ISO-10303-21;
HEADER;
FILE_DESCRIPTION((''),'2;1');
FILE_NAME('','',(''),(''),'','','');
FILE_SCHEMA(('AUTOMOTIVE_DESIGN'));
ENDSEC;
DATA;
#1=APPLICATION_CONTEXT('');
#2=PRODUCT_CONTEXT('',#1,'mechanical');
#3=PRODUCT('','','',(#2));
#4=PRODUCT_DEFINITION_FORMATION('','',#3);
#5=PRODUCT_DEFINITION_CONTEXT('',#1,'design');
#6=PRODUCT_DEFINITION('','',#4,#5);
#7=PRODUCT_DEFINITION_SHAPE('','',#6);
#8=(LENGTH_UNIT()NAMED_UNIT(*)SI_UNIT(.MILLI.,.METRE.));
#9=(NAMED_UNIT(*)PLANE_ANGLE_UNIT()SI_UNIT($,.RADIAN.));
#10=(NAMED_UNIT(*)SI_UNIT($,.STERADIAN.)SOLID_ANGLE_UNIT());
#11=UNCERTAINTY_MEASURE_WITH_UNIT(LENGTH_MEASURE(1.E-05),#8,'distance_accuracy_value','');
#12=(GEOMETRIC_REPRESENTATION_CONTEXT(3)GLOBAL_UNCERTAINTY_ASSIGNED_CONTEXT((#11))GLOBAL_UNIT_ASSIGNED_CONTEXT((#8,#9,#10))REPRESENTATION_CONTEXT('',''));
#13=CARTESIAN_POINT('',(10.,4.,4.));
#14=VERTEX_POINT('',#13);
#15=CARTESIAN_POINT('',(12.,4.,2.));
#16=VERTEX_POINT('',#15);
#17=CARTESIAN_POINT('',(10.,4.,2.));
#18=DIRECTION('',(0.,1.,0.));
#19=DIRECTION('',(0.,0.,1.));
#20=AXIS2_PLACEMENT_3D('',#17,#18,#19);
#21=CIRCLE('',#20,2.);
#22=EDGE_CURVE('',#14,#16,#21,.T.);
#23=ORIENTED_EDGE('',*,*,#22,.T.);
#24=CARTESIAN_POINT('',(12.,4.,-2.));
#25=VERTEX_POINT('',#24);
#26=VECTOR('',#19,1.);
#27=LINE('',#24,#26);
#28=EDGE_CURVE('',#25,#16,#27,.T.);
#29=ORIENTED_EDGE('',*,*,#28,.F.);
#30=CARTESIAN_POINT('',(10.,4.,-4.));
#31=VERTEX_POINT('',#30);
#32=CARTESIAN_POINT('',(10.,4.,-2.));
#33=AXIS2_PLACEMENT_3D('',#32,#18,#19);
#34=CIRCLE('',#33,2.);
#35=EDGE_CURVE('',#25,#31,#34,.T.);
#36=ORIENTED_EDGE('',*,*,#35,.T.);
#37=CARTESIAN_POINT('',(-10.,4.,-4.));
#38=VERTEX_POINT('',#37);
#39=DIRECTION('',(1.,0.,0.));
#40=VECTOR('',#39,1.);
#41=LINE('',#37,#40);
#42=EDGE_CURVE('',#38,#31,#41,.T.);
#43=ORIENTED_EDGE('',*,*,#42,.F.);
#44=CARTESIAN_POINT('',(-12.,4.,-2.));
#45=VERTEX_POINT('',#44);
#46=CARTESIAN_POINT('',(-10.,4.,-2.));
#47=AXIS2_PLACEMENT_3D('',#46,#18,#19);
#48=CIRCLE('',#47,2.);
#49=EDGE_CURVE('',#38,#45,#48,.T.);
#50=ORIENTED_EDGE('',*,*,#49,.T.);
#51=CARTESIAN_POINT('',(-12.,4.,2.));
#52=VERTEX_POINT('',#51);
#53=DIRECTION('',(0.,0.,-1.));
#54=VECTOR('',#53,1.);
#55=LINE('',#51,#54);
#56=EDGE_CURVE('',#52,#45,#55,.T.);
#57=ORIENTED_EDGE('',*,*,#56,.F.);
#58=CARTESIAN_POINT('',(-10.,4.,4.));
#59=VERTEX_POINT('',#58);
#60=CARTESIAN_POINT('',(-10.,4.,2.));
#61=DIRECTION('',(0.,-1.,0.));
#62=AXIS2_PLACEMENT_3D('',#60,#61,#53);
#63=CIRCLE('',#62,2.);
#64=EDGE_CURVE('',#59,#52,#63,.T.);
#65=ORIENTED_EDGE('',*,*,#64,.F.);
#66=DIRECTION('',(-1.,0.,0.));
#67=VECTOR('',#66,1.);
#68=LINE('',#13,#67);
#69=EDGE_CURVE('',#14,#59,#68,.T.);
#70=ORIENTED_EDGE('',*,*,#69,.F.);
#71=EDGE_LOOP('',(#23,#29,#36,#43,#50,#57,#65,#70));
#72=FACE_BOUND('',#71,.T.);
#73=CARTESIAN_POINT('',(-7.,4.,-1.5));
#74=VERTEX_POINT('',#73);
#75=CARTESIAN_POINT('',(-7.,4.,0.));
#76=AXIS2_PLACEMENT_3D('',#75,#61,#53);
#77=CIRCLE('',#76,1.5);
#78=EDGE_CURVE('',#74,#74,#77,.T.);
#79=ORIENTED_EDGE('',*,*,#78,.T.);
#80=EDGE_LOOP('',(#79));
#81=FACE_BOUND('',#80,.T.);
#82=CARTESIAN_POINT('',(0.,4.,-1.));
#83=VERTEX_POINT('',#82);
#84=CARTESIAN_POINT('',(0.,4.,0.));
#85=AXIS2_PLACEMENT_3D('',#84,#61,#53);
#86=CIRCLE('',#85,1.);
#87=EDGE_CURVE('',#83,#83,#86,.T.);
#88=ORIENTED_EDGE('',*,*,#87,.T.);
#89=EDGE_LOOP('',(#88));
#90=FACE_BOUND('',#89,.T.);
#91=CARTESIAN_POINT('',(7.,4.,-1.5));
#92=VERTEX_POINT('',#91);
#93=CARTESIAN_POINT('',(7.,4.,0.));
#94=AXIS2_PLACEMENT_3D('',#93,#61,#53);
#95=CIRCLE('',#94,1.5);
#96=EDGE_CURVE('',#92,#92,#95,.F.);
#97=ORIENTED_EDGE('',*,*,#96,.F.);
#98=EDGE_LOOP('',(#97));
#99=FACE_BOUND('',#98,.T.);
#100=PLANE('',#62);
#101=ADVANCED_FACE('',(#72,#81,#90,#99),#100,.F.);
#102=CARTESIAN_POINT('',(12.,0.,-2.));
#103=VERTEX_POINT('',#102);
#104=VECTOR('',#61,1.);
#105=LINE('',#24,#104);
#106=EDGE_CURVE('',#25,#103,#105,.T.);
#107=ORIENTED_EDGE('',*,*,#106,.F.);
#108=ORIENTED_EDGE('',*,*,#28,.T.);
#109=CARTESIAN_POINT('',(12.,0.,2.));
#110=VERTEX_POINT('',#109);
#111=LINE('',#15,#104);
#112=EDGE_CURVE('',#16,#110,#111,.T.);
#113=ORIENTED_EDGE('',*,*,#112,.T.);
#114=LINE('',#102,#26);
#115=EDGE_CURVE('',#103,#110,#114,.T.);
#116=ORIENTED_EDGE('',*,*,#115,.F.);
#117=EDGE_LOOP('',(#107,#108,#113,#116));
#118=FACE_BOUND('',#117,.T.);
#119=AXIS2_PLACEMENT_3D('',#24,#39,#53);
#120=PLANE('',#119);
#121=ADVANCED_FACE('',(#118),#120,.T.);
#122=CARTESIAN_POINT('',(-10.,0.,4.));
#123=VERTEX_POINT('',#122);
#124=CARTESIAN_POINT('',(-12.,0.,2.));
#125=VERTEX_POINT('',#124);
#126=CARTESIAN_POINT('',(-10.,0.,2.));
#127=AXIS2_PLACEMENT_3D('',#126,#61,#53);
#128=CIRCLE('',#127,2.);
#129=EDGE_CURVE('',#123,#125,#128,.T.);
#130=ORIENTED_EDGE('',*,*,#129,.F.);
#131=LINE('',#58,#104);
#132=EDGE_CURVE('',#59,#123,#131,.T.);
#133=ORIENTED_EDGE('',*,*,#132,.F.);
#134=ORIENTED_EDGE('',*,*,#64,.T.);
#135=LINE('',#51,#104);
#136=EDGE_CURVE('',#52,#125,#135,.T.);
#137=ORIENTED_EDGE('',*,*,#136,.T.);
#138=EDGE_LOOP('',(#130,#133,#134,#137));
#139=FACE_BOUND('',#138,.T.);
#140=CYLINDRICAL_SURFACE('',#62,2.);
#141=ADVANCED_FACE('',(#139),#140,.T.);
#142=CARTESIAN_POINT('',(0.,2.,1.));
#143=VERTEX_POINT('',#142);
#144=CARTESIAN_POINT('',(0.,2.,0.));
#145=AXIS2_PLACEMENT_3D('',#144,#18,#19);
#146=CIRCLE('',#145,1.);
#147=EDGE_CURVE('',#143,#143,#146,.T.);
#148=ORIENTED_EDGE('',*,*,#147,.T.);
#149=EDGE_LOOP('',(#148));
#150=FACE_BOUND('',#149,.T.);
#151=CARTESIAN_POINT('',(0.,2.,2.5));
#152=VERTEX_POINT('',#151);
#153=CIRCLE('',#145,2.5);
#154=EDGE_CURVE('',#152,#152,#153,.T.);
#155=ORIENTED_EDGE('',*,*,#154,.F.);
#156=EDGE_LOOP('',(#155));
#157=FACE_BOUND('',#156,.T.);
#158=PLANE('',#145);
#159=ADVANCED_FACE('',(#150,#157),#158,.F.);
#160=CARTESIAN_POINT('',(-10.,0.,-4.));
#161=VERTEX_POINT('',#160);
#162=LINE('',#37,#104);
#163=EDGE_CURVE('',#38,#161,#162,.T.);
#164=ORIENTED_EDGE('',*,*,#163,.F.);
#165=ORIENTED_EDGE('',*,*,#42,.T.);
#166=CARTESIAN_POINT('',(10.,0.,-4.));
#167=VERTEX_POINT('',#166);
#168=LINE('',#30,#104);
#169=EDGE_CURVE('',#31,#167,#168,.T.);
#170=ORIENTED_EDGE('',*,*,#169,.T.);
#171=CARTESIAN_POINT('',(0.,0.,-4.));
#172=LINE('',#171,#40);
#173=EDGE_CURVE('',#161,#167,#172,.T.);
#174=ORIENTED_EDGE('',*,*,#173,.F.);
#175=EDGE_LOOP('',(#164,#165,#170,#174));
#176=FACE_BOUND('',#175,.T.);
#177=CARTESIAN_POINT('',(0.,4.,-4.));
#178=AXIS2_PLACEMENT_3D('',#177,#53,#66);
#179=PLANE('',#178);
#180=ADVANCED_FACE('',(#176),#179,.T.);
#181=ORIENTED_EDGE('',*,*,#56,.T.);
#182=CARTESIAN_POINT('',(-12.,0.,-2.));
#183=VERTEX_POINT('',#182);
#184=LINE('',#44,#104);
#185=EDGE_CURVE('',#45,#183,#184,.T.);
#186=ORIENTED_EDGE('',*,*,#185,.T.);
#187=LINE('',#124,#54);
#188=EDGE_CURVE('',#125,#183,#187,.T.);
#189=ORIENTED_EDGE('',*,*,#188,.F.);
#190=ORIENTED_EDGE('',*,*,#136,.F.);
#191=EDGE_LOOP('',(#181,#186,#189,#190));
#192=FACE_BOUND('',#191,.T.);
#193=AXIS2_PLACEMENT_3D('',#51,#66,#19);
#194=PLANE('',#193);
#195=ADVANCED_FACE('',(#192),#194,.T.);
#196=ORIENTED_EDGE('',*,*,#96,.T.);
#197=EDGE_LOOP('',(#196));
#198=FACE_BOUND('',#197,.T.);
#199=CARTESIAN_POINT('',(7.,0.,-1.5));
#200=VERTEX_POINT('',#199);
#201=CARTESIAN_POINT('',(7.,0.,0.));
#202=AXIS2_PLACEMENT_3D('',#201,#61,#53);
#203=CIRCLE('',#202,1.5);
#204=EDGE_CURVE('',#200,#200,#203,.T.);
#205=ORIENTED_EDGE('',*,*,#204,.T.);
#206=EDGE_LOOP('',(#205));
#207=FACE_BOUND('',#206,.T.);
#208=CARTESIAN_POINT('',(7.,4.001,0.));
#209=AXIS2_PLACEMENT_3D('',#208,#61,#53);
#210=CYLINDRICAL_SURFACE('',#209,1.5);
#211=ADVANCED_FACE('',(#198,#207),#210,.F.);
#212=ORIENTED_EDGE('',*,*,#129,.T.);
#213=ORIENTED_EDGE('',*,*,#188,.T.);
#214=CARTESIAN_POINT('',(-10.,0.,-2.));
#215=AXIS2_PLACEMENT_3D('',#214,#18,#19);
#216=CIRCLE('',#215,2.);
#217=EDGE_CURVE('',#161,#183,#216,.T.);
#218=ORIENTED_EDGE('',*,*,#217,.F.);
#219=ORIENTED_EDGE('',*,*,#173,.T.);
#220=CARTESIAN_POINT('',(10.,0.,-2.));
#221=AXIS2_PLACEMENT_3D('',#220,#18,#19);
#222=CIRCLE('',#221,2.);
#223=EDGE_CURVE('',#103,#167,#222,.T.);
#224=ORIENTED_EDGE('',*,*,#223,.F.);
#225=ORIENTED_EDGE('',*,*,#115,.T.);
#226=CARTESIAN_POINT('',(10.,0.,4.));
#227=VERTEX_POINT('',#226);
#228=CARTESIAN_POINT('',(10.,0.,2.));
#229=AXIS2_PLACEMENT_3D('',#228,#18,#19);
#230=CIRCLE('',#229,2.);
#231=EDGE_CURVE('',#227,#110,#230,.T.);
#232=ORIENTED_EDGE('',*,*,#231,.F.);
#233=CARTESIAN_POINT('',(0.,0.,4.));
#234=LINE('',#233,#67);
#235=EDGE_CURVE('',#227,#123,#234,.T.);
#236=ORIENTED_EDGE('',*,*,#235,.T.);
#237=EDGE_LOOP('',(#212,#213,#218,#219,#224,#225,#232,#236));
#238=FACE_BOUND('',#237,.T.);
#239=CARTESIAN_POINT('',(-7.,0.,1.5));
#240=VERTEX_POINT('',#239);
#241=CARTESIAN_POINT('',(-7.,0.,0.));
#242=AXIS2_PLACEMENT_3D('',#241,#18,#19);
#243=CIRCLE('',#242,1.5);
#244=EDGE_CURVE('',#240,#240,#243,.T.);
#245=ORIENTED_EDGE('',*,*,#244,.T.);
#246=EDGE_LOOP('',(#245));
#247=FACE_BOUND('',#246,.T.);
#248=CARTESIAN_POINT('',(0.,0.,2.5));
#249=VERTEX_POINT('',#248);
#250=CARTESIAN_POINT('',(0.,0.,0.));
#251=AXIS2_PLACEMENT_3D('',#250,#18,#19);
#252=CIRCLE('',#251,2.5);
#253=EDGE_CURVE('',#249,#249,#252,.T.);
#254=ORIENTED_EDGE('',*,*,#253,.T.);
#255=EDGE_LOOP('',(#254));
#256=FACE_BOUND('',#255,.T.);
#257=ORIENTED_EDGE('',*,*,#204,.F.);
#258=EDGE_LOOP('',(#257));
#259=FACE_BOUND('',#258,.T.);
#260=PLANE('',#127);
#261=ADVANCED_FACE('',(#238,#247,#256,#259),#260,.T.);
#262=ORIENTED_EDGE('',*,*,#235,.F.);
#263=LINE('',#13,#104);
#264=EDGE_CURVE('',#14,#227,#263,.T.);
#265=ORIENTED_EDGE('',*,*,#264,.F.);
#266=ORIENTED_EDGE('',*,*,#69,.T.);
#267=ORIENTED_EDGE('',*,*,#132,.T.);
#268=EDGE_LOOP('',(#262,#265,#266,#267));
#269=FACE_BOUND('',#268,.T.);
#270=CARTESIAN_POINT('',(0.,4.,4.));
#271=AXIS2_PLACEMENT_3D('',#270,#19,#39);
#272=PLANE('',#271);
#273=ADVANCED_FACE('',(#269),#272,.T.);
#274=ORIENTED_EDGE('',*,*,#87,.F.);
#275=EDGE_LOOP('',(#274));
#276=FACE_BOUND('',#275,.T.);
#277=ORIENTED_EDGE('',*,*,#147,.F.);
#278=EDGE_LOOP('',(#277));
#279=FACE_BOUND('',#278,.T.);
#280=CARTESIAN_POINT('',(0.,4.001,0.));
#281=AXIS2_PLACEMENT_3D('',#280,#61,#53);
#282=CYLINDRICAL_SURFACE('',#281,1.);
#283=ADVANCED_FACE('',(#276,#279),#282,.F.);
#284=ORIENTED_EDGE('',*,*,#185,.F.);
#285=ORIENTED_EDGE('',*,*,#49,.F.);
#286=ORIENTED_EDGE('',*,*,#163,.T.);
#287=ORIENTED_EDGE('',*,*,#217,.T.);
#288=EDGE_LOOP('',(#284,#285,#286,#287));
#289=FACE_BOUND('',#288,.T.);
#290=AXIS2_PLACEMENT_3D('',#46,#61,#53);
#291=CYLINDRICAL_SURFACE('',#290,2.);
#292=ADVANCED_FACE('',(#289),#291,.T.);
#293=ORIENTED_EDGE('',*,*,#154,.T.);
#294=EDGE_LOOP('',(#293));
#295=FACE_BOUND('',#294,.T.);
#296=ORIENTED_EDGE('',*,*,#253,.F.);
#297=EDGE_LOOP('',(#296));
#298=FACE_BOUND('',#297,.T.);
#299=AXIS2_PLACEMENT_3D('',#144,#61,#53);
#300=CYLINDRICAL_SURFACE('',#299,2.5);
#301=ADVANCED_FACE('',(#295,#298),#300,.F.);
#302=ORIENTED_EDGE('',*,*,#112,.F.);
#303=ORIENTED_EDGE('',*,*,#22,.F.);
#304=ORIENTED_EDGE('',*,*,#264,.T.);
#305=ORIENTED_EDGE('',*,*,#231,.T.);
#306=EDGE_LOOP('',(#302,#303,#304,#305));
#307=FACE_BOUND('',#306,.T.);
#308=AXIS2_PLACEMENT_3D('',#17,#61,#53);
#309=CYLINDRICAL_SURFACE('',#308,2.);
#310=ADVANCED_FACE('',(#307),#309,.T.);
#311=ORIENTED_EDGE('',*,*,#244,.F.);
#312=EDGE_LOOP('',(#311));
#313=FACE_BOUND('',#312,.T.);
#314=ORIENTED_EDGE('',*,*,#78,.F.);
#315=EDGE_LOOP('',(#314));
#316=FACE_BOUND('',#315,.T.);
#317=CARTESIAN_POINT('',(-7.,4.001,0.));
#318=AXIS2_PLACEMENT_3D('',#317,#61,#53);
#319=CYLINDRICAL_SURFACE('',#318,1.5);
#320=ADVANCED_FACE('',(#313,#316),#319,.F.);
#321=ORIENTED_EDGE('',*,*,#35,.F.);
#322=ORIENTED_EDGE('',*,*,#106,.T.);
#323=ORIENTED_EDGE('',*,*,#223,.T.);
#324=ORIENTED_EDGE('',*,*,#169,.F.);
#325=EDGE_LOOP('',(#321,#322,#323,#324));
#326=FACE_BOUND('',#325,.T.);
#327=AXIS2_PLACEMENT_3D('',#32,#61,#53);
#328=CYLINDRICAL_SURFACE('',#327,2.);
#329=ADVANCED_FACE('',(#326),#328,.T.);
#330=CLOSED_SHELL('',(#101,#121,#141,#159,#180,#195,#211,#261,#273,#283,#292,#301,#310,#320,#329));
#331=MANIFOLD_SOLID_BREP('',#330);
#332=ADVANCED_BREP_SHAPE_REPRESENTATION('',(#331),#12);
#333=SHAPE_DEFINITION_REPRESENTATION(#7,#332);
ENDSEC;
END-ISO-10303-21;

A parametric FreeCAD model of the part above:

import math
import FreeCAD as App
import Part
import Sketcher
from FreeCAD import Vector

doc = App.newDocument("Part")
body = doc.addObject("PartDesign::Body", "Body")

# Sketch on XZ plane
sketch1 = doc.addObject("Sketcher::SketchObject", "Sketch")
body.addObject(sketch1)
sketch1.AttachmentSupport = (doc.XZ_Plane, [""])
sketch1.MapMode = "FlatFace"
sketch1.addGeometry([
    Part.ArcOfCircle(Part.Circle(Vector(10, -2, 0), Vector(0, 0, 1), 2), math.radians(-90), math.radians(0)),  # 0
    Part.LineSegment(Vector(10, -4, 0), Vector(-10, -4, 0)),  # 1
    Part.ArcOfCircle(Part.Circle(Vector(-10, -2, 0), Vector(0, 0, 1), 2), math.radians(-180), math.radians(-90)),  # 2
    Part.LineSegment(Vector(-12, -2, 0), Vector(-12, 2, 0)),  # 3
    Part.ArcOfCircle(Part.Circle(Vector(-10, 2, 0), Vector(0, 0, 1), 2), math.radians(90), math.radians(180)),  # 4
    Part.LineSegment(Vector(-10, 4, 0), Vector(10, 4, 0)),  # 5
    Part.ArcOfCircle(Part.Circle(Vector(10, 2, 0), Vector(0, 0, 1), 2), math.radians(0), math.radians(90)),  # 6
    Part.LineSegment(Vector(12, 2, 0), Vector(12, -2, 0)),  # 7
], False)
sketch1.addConstraint([
    Sketcher.Constraint("Tangent", 0, 1, 1, 1),
    Sketcher.Constraint("Tangent", 1, 2, 2, 2),
    Sketcher.Constraint("Tangent", 2, 1, 3, 1),
    Sketcher.Constraint("Tangent", 3, 2, 4, 2),
    Sketcher.Constraint("Tangent", 4, 1, 5, 1),
    Sketcher.Constraint("Tangent", 5, 2, 6, 2),
    Sketcher.Constraint("Tangent", 6, 1, 7, 1),
    Sketcher.Constraint("Tangent", 7, 2, 0, 2),
    Sketcher.Constraint("Horizontal", 1),
    Sketcher.Constraint("Vertical", 3),
    Sketcher.Constraint("Horizontal", 5),
    Sketcher.Constraint("Vertical", 7),
    Sketcher.Constraint("Equal", 0, 2),
    Sketcher.Constraint("Equal", 2, 4),
    Sketcher.Constraint("Equal", 4, 6),
    Sketcher.Constraint("Symmetric", 0, 3, 4, 3, -1, 1),
    Sketcher.Constraint("Radius", 0, 2.0),
    Sketcher.Constraint("DistanceX", 1, 2, 1, 1, 20.0),
    Sketcher.Constraint("DistanceY", 3, 1, 3, 2, 4.0),
])
pad1 = doc.addObject("PartDesign::Pad", "Pad")
body.addObject(pad1)
pad1.Profile = sketch1
pad1.Length = 4
pad1.Reversed = True

# Sketch on XZ plane
sketch2 = doc.addObject("Sketcher::SketchObject", "Sketch001")
body.addObject(sketch2)
sketch2.AttachmentSupport = (doc.XZ_Plane, [""])
sketch2.MapMode = "FlatFace"
sketch2.addGeometry(Part.Circle(Vector(0, 0, 0), Vector(0, 0, 1), 1), False)
sketch2.addConstraint([
    Sketcher.Constraint("Coincident", 0, 3, -1, 1),
    Sketcher.Constraint("Diameter", 0, 2.0),
])
pocket1 = doc.addObject("PartDesign::Pocket", "Pocket")
body.addObject(pocket1)
pocket1.Profile = sketch2
pocket1.Type = "UpToFirst"

# Sketch on XZ plane
sketch3 = doc.addObject("Sketcher::SketchObject", "Sketch002")
body.addObject(sketch3)
sketch3.AttachmentSupport = (doc.XZ_Plane, [""])
sketch3.MapMode = "FlatFace"
sketch3.addGeometry(Part.Circle(Vector(-7, 0, 0), Vector(0, 0, 1), 1.5), False)
sketch3.addConstraint([
    Sketcher.Constraint("PointOnObject", 0, 3, -1),
    Sketcher.Constraint("Diameter", 0, 3.0),
    Sketcher.Constraint("DistanceX", 0, 3, -1, 1, 7.0),
])
pocket2 = doc.addObject("PartDesign::Pocket", "Pocket001")
body.addObject(pocket2)
pocket2.Profile = sketch3
pocket2.Type = "UpToFirst"

# Sketch on XZ plane
sketch4 = doc.addObject("Sketcher::SketchObject", "Sketch003")
body.addObject(sketch4)
sketch4.AttachmentSupport = (doc.XZ_Plane, [""])
sketch4.MapMode = "FlatFace"
sketch4.addGeometry(Part.Circle(Vector(7, 0, 0), Vector(0, 0, 1), 1.5), False)
sketch4.addConstraint([
    Sketcher.Constraint("PointOnObject", 0, 3, -1),
    Sketcher.Constraint("Diameter", 0, 3.0),
    Sketcher.Constraint("DistanceX", -1, 1, 0, 3, 7.0),
])
pocket3 = doc.addObject("PartDesign::Pocket", "Pocket002")
body.addObject(pocket3)
pocket3.Profile = sketch4
pocket3.Type = "UpToFirst"

# Sketch on XZ plane
sketch5 = doc.addObject("Sketcher::SketchObject", "Sketch004")
body.addObject(sketch5)
sketch5.AttachmentSupport = (doc.XZ_Plane, [""])
sketch5.MapMode = "FlatFace"
sketch5.addGeometry(Part.Circle(Vector(0, 0, 0), Vector(0, 0, 1), 2.5), False)
sketch5.addConstraint([
    Sketcher.Constraint("Coincident", 0, 3, -1, 1),
    Sketcher.Constraint("Diameter", 0, 5.0),
])
pocket4 = doc.addObject("PartDesign::Pocket", "Pocket003")
body.addObject(pocket4)
pocket4.Profile = sketch5
pocket4.Length = 2

doc.recompute()
